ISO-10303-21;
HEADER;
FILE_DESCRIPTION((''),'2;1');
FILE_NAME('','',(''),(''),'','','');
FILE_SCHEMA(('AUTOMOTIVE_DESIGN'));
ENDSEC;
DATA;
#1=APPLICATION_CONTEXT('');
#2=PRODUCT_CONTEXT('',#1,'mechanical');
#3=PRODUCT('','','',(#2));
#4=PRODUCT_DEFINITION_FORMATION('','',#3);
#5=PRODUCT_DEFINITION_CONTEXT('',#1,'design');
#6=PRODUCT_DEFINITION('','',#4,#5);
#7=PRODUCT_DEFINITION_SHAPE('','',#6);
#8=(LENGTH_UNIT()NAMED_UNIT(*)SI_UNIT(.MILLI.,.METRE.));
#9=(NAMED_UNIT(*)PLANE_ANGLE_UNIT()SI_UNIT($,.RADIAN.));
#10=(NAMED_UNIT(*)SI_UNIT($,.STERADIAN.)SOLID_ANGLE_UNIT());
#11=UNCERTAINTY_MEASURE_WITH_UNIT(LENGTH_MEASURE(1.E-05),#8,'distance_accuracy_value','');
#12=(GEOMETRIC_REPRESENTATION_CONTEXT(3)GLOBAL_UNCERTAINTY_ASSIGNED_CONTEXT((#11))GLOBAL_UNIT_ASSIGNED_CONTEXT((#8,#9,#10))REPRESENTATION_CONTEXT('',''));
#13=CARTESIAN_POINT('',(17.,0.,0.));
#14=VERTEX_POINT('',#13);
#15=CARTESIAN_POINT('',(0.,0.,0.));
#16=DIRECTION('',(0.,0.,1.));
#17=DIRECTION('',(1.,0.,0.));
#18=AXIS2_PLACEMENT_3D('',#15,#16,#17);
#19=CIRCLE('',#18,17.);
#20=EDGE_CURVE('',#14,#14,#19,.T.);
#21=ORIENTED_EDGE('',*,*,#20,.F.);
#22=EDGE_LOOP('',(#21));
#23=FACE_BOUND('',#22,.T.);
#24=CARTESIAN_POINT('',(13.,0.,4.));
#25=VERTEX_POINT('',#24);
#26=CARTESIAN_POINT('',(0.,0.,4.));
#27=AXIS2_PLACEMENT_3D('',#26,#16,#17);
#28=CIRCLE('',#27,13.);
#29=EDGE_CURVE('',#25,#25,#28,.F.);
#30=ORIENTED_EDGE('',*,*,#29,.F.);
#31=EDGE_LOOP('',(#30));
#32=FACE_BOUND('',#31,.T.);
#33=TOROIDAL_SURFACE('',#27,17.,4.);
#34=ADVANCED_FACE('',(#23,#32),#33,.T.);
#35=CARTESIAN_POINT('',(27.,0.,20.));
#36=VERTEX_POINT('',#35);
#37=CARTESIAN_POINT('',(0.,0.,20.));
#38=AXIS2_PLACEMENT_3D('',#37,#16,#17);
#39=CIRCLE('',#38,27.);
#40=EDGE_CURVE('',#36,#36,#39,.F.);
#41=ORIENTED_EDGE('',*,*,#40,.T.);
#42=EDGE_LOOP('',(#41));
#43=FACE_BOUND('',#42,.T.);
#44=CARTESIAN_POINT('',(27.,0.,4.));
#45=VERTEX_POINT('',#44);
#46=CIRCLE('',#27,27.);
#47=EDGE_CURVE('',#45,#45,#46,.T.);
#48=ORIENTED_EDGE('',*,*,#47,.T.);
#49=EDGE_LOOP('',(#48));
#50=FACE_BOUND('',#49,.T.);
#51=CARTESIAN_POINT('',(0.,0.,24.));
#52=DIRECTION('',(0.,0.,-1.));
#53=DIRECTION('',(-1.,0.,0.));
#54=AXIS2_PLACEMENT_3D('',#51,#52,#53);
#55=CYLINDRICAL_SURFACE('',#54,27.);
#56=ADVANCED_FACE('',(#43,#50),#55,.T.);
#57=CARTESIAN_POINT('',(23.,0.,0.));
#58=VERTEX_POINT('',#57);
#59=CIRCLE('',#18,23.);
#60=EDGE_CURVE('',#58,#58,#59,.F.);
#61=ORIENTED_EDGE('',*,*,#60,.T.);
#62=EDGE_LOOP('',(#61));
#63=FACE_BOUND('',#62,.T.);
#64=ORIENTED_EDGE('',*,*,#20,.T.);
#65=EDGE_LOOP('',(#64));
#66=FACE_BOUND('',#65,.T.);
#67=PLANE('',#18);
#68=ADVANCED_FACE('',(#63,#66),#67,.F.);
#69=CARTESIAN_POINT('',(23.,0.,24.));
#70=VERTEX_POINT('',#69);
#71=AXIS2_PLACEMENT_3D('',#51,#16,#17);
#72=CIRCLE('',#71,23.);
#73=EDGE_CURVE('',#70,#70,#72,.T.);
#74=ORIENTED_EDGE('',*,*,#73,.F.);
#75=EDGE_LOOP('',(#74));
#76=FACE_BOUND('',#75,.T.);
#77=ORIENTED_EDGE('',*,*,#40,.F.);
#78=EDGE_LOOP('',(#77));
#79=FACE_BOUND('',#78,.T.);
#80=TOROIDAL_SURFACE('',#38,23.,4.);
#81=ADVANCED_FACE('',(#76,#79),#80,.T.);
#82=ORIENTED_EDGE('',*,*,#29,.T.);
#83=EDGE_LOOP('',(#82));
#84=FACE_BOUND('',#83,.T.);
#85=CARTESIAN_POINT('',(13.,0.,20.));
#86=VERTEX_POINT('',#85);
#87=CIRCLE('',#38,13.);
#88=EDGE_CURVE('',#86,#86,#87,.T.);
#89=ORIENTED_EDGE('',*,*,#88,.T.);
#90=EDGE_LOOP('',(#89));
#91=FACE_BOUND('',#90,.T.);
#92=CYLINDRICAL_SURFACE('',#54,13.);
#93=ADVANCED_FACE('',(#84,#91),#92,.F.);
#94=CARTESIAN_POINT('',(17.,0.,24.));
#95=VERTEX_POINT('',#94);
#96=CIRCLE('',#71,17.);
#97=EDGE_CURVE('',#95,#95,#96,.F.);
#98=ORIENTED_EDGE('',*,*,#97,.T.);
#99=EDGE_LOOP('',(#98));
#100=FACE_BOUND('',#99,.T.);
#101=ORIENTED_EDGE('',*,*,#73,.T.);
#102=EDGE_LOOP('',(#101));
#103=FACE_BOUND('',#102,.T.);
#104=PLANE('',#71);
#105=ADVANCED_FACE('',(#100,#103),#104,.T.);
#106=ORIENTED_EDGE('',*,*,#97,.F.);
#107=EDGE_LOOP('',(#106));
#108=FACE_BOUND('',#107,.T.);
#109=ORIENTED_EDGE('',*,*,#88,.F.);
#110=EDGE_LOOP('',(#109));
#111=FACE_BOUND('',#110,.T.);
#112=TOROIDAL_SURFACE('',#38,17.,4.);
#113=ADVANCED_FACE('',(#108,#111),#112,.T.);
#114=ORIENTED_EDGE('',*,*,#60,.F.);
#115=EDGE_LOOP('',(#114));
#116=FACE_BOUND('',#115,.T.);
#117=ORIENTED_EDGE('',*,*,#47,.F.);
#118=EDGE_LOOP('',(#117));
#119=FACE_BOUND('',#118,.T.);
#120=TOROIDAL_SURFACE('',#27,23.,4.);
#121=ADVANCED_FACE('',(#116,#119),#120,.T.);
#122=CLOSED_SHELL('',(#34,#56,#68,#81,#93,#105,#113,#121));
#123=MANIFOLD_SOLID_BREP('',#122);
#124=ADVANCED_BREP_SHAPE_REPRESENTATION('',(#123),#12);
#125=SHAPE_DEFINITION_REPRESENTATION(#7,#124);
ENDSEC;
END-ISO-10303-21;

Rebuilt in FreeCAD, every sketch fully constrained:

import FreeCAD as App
import Part
import Sketcher
from FreeCAD import Vector
Q = App.Units.Quantity


def edges_at(feature, points):
    """Names of the edges that pass closest to the given points."""
    edges = feature.Shape.Edges
    near = lambda p: min(range(len(edges)), key=lambda i: edges[i].distToShape(Part.Vertex(*p))[0])
    return sorted({f"Edge{near(p) + 1}" for p in points})

doc = App.newDocument("Part")
body = doc.addObject("PartDesign::Body", "Body")

sketch1 = body.newObject("Sketcher::SketchObject", "Sketch")
sketch1.AttachmentSupport = (doc.getObject("XY_Plane"), [""])
sketch1.MapMode = "FlatFace"
sketch1.addGeometry(Part.Circle(Vector(0, 0, 0), Vector(0, 0, 1), 27), False)
sketch1.addGeometry(Part.Circle(Vector(0, 0, 0), Vector(0, 0, 1), 13), False)
sketch1.addConstraint(Sketcher.Constraint("Coincident", 0, 3, -1, 1))
sketch1.addConstraint(Sketcher.Constraint("Coincident", 1, 3, -1, 1))
sketch1.addConstraint(Sketcher.Constraint("Diameter", 0, Q("54 mm")))
sketch1.addConstraint(Sketcher.Constraint("Diameter", 1, Q("26 mm")))
pad1 = body.newObject("PartDesign::Pad", "Pad")
pad1.Profile = sketch1
pad1.Length = 24
doc.recompute()

fillet = body.newObject("PartDesign::Fillet", "Fillet")
fillet.Base = (pad1, edges_at(pad1, [
    (-27, 0, 0),
    (-27, 0, 24),
    (-13, 0, 0),
    (-13, 0, 24),
]))
fillet.Radius = 4

doc.recompute()
